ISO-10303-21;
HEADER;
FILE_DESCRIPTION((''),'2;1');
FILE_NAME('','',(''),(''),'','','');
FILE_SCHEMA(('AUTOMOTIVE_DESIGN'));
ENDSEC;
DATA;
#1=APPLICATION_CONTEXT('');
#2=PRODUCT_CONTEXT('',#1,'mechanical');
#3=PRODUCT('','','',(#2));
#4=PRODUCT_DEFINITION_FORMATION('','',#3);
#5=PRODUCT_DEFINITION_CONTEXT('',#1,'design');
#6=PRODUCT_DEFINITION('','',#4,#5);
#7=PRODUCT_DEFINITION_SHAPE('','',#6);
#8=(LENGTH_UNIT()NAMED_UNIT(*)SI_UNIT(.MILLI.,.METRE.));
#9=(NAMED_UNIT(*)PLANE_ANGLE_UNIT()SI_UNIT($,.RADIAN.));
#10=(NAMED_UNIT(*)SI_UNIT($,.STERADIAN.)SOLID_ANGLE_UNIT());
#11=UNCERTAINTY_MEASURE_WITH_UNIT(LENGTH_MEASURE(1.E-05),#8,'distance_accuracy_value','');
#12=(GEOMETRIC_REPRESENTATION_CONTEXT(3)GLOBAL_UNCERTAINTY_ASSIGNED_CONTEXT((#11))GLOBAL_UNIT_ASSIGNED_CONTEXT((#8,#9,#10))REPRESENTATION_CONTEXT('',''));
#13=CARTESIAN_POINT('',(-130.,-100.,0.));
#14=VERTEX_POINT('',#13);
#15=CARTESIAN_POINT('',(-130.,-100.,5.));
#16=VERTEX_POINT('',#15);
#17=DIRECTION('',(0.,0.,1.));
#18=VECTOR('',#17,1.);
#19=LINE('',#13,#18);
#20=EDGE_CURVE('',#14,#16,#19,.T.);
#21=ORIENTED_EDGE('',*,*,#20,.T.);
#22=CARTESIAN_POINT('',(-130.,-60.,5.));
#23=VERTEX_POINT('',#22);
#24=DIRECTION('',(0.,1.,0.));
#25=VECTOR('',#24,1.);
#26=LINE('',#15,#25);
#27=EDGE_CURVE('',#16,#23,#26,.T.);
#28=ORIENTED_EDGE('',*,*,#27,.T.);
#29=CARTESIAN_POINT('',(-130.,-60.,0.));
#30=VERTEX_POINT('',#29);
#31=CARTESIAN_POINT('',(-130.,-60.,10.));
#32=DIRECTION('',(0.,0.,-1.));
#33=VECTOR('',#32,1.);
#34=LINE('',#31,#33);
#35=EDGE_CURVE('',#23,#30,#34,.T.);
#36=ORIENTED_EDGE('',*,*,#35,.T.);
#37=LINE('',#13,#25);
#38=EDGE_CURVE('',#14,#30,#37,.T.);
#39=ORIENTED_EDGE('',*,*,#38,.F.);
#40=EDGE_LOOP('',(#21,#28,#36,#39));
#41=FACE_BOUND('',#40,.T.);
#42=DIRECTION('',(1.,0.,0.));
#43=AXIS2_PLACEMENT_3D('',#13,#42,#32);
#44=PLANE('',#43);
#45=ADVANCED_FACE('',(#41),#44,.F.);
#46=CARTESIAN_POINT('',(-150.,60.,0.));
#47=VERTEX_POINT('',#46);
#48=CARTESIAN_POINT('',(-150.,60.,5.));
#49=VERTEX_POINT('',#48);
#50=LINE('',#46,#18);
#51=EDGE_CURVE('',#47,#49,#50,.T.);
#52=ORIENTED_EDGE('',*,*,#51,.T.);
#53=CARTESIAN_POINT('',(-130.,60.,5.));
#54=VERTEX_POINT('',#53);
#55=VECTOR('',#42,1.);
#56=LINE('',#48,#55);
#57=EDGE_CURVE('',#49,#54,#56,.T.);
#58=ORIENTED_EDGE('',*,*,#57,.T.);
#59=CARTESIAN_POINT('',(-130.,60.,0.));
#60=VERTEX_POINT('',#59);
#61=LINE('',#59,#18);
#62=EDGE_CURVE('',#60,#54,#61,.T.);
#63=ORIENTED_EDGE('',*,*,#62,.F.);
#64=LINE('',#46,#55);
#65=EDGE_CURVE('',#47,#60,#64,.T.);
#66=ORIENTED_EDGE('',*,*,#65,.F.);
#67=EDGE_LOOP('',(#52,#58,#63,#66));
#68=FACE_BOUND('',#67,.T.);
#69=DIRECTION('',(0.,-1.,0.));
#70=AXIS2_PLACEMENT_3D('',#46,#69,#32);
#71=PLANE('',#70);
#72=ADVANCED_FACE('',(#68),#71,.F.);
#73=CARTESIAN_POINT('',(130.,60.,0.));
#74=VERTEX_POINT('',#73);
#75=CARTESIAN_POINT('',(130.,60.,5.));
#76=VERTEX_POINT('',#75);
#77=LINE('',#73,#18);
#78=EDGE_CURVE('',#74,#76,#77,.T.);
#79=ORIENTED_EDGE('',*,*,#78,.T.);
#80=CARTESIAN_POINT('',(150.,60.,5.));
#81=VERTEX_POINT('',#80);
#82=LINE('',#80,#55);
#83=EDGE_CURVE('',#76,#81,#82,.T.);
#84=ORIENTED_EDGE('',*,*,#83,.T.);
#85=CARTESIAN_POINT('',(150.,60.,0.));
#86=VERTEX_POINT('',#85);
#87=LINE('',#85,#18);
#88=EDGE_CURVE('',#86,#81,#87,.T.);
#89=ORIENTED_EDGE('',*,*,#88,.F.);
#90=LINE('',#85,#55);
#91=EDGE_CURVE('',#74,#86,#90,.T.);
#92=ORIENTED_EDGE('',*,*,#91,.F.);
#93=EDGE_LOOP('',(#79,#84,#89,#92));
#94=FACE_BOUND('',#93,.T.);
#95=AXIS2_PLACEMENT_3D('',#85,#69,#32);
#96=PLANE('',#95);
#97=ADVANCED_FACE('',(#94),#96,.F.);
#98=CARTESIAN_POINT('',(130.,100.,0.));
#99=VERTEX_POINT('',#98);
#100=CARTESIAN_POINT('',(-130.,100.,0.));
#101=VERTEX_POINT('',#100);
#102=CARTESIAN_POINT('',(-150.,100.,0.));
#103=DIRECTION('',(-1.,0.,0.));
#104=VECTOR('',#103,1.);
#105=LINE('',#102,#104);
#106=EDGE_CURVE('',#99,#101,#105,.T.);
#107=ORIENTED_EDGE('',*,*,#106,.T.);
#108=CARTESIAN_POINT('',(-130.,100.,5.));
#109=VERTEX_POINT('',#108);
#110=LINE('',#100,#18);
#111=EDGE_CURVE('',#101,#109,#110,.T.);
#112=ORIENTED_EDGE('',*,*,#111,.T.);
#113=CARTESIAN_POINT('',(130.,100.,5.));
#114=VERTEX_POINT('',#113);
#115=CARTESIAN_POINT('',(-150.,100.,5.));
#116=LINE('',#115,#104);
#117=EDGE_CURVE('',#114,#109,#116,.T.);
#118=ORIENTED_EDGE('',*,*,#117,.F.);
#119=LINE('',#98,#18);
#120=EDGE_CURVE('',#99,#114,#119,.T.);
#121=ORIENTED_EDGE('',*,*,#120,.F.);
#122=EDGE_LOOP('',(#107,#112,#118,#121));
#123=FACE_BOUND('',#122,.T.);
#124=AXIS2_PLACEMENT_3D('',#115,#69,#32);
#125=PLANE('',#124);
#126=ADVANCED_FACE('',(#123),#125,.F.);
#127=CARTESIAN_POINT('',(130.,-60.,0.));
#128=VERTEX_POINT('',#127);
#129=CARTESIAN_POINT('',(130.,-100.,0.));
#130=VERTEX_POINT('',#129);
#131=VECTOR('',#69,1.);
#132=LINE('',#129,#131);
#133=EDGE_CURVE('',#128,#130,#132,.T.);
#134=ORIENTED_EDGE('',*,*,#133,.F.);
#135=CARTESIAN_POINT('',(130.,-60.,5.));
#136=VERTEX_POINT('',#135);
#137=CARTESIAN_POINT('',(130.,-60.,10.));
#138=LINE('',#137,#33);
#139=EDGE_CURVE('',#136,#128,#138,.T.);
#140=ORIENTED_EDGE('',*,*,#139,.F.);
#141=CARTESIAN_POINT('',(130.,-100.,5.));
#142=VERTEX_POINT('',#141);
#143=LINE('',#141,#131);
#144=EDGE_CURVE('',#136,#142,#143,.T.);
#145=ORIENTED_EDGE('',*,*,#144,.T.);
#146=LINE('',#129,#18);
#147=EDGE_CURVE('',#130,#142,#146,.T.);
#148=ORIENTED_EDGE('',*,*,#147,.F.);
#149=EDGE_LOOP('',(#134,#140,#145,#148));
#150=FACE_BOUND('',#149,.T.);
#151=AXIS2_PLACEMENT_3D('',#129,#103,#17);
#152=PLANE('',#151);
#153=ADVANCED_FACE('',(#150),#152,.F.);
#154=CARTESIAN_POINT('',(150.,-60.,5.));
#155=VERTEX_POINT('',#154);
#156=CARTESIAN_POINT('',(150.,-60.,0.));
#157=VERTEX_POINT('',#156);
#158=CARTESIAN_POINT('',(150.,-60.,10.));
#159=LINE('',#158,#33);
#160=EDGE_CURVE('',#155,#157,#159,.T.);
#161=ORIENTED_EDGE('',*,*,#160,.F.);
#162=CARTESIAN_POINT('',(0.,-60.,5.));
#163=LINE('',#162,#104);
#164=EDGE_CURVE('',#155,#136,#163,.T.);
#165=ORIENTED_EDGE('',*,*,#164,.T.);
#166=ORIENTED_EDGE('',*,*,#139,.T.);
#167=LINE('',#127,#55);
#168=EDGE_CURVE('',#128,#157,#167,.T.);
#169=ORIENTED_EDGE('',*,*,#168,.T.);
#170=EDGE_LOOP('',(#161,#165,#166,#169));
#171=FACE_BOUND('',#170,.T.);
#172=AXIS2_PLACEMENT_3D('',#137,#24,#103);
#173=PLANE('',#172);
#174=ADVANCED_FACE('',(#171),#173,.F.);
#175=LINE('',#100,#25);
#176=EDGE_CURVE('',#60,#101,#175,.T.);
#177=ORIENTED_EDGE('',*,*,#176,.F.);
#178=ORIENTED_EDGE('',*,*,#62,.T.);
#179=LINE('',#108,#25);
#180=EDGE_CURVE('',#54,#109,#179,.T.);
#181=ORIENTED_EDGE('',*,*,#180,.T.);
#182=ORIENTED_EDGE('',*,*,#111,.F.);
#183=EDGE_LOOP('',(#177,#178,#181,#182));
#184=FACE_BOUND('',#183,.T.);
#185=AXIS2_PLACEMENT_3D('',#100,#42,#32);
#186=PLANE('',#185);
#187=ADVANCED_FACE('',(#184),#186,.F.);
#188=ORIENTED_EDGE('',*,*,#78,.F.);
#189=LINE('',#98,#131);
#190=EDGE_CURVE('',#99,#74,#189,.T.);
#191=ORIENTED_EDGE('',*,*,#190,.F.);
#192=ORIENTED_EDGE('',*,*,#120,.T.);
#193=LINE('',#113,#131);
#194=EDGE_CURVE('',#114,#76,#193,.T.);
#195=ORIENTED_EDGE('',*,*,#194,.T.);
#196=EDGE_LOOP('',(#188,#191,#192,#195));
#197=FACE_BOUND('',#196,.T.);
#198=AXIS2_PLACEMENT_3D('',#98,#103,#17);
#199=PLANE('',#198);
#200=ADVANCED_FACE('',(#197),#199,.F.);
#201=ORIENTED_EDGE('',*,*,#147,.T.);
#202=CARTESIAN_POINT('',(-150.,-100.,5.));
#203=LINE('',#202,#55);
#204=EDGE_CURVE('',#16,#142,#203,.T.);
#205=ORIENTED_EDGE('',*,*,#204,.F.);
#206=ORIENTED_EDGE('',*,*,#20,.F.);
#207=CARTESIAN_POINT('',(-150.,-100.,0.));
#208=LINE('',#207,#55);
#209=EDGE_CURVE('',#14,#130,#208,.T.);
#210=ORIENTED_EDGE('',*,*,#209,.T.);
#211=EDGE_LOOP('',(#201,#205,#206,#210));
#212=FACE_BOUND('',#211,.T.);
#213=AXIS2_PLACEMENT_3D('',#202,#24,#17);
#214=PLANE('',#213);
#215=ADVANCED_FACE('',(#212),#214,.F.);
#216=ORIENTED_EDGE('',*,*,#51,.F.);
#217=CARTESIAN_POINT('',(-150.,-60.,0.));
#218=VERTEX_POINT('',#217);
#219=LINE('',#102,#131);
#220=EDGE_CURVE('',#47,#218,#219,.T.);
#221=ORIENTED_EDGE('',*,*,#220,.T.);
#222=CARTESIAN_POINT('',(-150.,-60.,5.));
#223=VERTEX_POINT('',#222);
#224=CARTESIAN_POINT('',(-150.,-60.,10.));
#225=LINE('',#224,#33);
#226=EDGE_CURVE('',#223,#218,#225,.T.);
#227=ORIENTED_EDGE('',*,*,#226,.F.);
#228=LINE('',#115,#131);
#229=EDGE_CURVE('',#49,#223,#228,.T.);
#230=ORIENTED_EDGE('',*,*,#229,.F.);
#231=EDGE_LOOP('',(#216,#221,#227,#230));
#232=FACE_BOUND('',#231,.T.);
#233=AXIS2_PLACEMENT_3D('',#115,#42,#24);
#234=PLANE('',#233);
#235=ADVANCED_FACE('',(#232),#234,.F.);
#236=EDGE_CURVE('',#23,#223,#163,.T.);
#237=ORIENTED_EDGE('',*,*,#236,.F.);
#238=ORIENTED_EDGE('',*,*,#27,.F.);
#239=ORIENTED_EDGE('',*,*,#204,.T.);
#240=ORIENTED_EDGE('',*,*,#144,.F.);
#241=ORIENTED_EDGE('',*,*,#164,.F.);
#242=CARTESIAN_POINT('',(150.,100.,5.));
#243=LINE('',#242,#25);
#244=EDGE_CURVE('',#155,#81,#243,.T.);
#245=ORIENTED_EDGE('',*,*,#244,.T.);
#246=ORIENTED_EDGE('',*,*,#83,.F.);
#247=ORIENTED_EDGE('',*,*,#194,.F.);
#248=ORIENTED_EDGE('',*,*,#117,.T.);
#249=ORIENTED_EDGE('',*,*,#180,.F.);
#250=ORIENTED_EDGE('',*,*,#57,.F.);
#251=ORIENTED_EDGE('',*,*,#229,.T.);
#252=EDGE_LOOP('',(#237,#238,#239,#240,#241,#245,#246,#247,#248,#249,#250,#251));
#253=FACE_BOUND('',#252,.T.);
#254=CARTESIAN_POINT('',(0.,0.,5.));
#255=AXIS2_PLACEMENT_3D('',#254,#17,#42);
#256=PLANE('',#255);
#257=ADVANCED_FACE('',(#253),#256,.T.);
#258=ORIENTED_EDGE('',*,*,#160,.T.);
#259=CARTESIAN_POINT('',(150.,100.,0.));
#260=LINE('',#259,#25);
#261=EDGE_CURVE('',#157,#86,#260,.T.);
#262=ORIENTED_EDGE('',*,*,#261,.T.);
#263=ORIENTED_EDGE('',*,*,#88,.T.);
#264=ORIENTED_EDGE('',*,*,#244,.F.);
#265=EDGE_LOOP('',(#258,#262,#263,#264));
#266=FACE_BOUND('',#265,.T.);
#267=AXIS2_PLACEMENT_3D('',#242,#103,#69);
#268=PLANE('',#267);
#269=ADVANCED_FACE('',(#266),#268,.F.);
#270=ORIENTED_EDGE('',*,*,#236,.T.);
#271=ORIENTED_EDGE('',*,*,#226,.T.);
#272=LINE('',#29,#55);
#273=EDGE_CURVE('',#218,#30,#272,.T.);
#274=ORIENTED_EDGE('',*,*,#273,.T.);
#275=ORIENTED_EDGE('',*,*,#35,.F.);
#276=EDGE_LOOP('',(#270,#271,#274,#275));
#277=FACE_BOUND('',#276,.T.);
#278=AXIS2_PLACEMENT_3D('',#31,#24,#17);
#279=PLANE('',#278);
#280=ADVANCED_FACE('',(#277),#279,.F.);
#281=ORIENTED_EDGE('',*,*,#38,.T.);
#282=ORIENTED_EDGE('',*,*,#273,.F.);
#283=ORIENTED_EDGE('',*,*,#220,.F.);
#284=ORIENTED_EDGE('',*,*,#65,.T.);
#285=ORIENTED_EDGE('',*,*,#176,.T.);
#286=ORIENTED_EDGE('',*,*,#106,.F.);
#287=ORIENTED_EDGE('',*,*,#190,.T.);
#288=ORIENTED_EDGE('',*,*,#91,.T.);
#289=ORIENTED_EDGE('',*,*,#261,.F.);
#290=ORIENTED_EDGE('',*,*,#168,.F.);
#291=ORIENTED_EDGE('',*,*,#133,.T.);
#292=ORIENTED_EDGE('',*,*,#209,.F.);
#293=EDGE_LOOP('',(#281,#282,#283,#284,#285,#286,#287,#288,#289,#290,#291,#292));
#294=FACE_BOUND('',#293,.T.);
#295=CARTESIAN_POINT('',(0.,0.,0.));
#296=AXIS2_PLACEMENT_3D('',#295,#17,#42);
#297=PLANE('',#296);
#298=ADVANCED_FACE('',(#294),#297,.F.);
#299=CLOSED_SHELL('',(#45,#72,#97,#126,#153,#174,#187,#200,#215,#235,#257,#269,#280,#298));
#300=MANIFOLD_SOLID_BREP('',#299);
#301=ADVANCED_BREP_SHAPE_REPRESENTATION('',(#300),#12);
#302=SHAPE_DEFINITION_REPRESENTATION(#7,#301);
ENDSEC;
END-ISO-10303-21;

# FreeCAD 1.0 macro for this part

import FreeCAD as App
import Part
import Sketcher

V = App.Vector
Q = App.Units.Quantity

doc = App.newDocument("Part")
body = doc.addObject("PartDesign::Body", "Body")

# Sketch on XY plane
sketch1 = body.newObject("Sketcher::SketchObject", "Sketch")
sketch1.AttachmentSupport = (doc.getObject("XY_Plane"), [""])
sketch1.MapMode = "FlatFace"
sketch1.addGeometry(Part.LineSegment(V(-150, 100, 0), V(-150, -100, 0)), False)
sketch1.addGeometry(Part.LineSegment(V(-150, -100, 0), V(150, -100, 0)), False)
sketch1.addGeometry(Part.LineSegment(V(150, -100, 0), V(150, 100, 0)), False)
sketch1.addGeometry(Part.LineSegment(V(150, 100, 0), V(-150, 100, 0)), False)
sketch1.addConstraint(Sketcher.Constraint("Coincident", 0, 2, 1, 1))
sketch1.addConstraint(Sketcher.Constraint("Coincident", 1, 2, 2, 1))
sketch1.addConstraint(Sketcher.Constraint("Coincident", 2, 2, 3, 1))
sketch1.addConstraint(Sketcher.Constraint("Coincident", 3, 2, 0, 1))
sketch1.addConstraint(Sketcher.Constraint("Vertical", 0))
sketch1.addConstraint(Sketcher.Constraint("Horizontal", 1))
sketch1.addConstraint(Sketcher.Constraint("Vertical", 2))
sketch1.addConstraint(Sketcher.Constraint("Horizontal", 3))
sketch1.addConstraint(Sketcher.Constraint("Symmetric", 0, 2, 2, 2, -1, 1))
sketch1.addConstraint(Sketcher.Constraint("DistanceX", 1, 1, 1, 2, Q("300 mm")))
sketch1.addConstraint(Sketcher.Constraint("DistanceY", 0, 2, 0, 1, Q("200 mm")))
pad1 = body.newObject("PartDesign::Pad", "Pad")
pad1.Profile = sketch1
pad1.Length = 5

# Sketch on XY plane
sketch2 = body.newObject("Sketcher::SketchObject", "Sketch001")
sketch2.AttachmentSupport = (doc.getObject("XY_Plane"), [""])
sketch2.MapMode = "FlatFace"
sketch2.AttachmentOffset = App.Placement(V(0, 0, 5), App.Rotation())
sketch2.addGeometry(Part.LineSegment(V(-150, -80, 0), V(-150, -100, 0)), False)
sketch2.addGeometry(Part.LineSegment(V(-150, -100, 0), V(-130, -100, 0)), False)
sketch2.addGeometry(Part.LineSegment(V(-130, -100, 0), V(-130, -80, 0)), False)
sketch2.addGeometry(Part.LineSegment(V(-130, -80, 0), V(-150, -80, 0)), False)
sketch2.addGeometry(Part.LineSegment(V(-150, 100, 0), V(-150, 60, 0)), False)
sketch2.addGeometry(Part.LineSegment(V(-150, 60, 0), V(-130, 60, 0)), False)
sketch2.addGeometry(Part.LineSegment(V(-130, 60, 0), V(-130, 100, 0)), False)
sketch2.addGeometry(Part.LineSegment(V(-130, 100, 0), V(-150, 100, 0)), False)
sketch2.addGeometry(Part.LineSegment(V(130, 100, 0), V(130, 60, 0)), False)
sketch2.addGeometry(Part.LineSegment(V(130, 60, 0), V(150, 60, 0)), False)
sketch2.addGeometry(Part.LineSegment(V(150, 60, 0), V(150, 100, 0)), False)
sketch2.addGeometry(Part.LineSegment(V(150, 100, 0), V(130, 100, 0)), False)
sketch2.addGeometry(Part.LineSegment(V(130, -80, 0), V(130, -100, 0)), False)
sketch2.addGeometry(Part.LineSegment(V(130, -100, 0), V(150, -100, 0)), False)
sketch2.addGeometry(Part.LineSegment(V(150, -100, 0), V(150, -80, 0)), False)
sketch2.addGeometry(Part.LineSegment(V(150, -80, 0), V(130, -80, 0)), False)
sketch2.addConstraint(Sketcher.Constraint("Coincident", 0, 2, 1, 1))
sketch2.addConstraint(Sketcher.Constraint("Coincident", 1, 2, 2, 1))
sketch2.addConstraint(Sketcher.Constraint("Coincident", 2, 2, 3, 1))
sketch2.addConstraint(Sketcher.Constraint("Coincident", 3, 2, 0, 1))
sketch2.addConstraint(Sketcher.Constraint("Coincident", 4, 2, 5, 1))
sketch2.addConstraint(Sketcher.Constraint("Coincident", 5, 2, 6, 1))
sketch2.addConstraint(Sketcher.Constraint("Coincident", 6, 2, 7, 1))
sketch2.addConstraint(Sketcher.Constraint("Coincident", 7, 2, 4, 1))
sketch2.addConstraint(Sketcher.Constraint("Coincident", 8, 2, 9, 1))
sketch2.addConstraint(Sketcher.Constraint("Coincident", 9, 2, 10, 1))
sketch2.addConstraint(Sketcher.Constraint("Coincident", 10, 2, 11, 1))
sketch2.addConstraint(Sketcher.Constraint("Coincident", 11, 2, 8, 1))
sketch2.addConstraint(Sketcher.Constraint("Coincident", 12, 2, 13, 1))
sketch2.addConstraint(Sketcher.Constraint("Coincident", 13, 2, 14, 1))
sketch2.addConstraint(Sketcher.Constraint("Coincident", 14, 2, 15, 1))
sketch2.addConstraint(Sketcher.Constraint("Coincident", 15, 2, 12, 1))
sketch2.addConstraint(Sketcher.Constraint("Vertical", 0))
sketch2.addConstraint(Sketcher.Constraint("Horizontal", 1))
sketch2.addConstraint(Sketcher.Constraint("Vertical", 2))
sketch2.addConstraint(Sketcher.Constraint("Horizontal", 3))
sketch2.addConstraint(Sketcher.Constraint("Vertical", 4))
sketch2.addConstraint(Sketcher.Constraint("Horizontal", 5))
sketch2.addConstraint(Sketcher.Constraint("Vertical", 6))
sketch2.addConstraint(Sketcher.Constraint("Horizontal", 7))
sketch2.addConstraint(Sketcher.Constraint("Vertical", 8))
sketch2.addConstraint(Sketcher.Constraint("Horizontal", 9))
sketch2.addConstraint(Sketcher.Constraint("Vertical", 10))
sketch2.addConstraint(Sketcher.Constraint("Horizontal", 11))
sketch2.addConstraint(Sketcher.Constraint("Vertical", 12))
sketch2.addConstraint(Sketcher.Constraint("Horizontal", 13))
sketch2.addConstraint(Sketcher.Constraint("Vertical", 14))
sketch2.addConstraint(Sketcher.Constraint("Horizontal", 15))
sketch2.addConstraint(Sketcher.Constraint("Symmetric", 0, 2, 10, 2, -1, 1))
sketch2.addConstraint(Sketcher.Constraint("Symmetric", 6, 2, 12, 2, -1, 1))
sketch2.addConstraint(Sketcher.Constraint("Symmetric", 5, 2, 8, 2, -2))
sketch2.addConstraint(Sketcher.Constraint("Symmetric", 7, 2, 10, 2, -2))
sketch2.addConstraint(Sketcher.Constraint("Symmetric", 3, 2, 14, 2, -2))
sketch2.addConstraint(Sketcher.Constraint("Vertical", 2, 2, 5, 2))
sketch2.addConstraint(Sketcher.Constraint("Equal", 15, 0))
sketch2.addConstraint(Sketcher.Constraint("DistanceX", 1, 1, 1, 2, Q("20 mm")))
sketch2.addConstraint(Sketcher.Constraint("DistanceY", 4, 2, 4, 1, Q("40 mm")))
sketch2.addConstraint(Sketcher.Constraint("DistanceX", 0, 2, -1, 1, Q("150 mm")))
sketch2.addConstraint(Sketcher.Constraint("DistanceY", 0, 2, -1, 1, Q("100 mm")))
pocket1 = body.newObject("PartDesign::Pocket", "Pocket")
pocket1.Profile = sketch2
pocket1.Length = 5

# Sketch on XY plane
sketch3 = body.newObject("Sketcher::SketchObject", "Sketch002")
sketch3.AttachmentSupport = (doc.getObject("XY_Plane"), [""])
sketch3.MapMode = "FlatFace"
sketch3.addGeometry(Part.LineSegment(V(150, -60, 0), V(150, -100, 0)), False)
sketch3.addGeometry(Part.LineSegment(V(150, -100, 0), V(130, -100, 0)), False)
sketch3.addGeometry(Part.LineSegment(V(130, -100, 0), V(130, -60, 0)), False)
sketch3.addGeometry(Part.LineSegment(V(130, -60, 0), V(150, -60, 0)), False)
sketch3.addGeometry(Part.LineSegment(V(-130, -60, 0), V(-130, -100, 0)), False)
sketch3.addGeometry(Part.LineSegment(V(-130, -100, 0), V(-150, -100, 0)), False)
sketch3.addGeometry(Part.LineSegment(V(-150, -100, 0), V(-150, -60, 0)), False)
sketch3.addGeometry(Part.LineSegment(V(-150, -60, 0), V(-130, -60, 0)), False)
sketch3.addConstraint(Sketcher.Constraint("Coincident", 0, 2, 1, 1))
sketch3.addConstraint(Sketcher.Constraint("Coincident", 1, 2, 2, 1))
sketch3.addConstraint(Sketcher.Constraint("Coincident", 2, 2, 3, 1))
sketch3.addConstraint(Sketcher.Constraint("Coincident", 3, 2, 0, 1))
sketch3.addConstraint(Sketcher.Constraint("Coincident", 4, 2, 5, 1))
sketch3.addConstraint(Sketcher.Constraint("Coincident", 5, 2, 6, 1))
sketch3.addConstraint(Sketcher.Constraint("Coincident", 6, 2, 7, 1))
sketch3.addConstraint(Sketcher.Constraint("Coincident", 7, 2, 4, 1))
sketch3.addConstraint(Sketcher.Constraint("Vertical", 0))
sketch3.addConstraint(Sketcher.Constraint("Horizontal", 1))
sketch3.addConstraint(Sketcher.Constraint("Vertical", 2))
sketch3.addConstraint(Sketcher.Constraint("Horizontal", 3))
sketch3.addConstraint(Sketcher.Constraint("Vertical", 4))
sketch3.addConstraint(Sketcher.Constraint("Horizontal", 5))
sketch3.addConstraint(Sketcher.Constraint("Vertical", 6))
sketch3.addConstraint(Sketcher.Constraint("Horizontal", 7))
sketch3.addConstraint(Sketcher.Constraint("Symmetric", 1, 2, 4, 2, -2))
sketch3.addConstraint(Sketcher.Constraint("Symmetric", 3, 2, 6, 2, -2))
sketch3.addConstraint(Sketcher.Constraint("DistanceX", 1, 2, 1, 1, Q("20 mm")))
sketch3.addConstraint(Sketcher.Constraint("DistanceY", 0, 2, 0, 1, Q("40 mm")))
sketch3.addConstraint(Sketcher.Constraint("DistanceX", -1, 1, 0, 2, Q("150 mm")))
sketch3.addConstraint(Sketcher.Constraint("DistanceY", 0, 2, -1, 1, Q("100 mm")))
pocket2 = body.newObject("PartDesign::Pocket", "Pocket001")
pocket2.Profile = sketch3
pocket2.Length = 10
pocket2.Reversed = True

doc.recompute()
